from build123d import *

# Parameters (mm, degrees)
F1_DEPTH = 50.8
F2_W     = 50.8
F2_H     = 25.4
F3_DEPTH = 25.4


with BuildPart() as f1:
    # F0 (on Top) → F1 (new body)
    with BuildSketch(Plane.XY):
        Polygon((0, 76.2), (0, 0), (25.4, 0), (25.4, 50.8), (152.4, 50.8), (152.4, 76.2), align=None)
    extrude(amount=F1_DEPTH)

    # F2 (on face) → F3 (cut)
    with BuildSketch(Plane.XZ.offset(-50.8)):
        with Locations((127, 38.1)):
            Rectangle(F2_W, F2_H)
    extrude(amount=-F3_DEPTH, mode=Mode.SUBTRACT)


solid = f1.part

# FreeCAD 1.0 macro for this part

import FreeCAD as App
import Part
import Sketcher
Q = App.Units.Quantity


def add_polygon(sketch, points):
    """Adds a closed chain of lines whose ends are joined by coincident constraints."""
    first, n = sketch.GeometryCount, len(points)
    for a, b in zip(points, points[1:] + points[:1]):
        sketch.addGeometry(Part.LineSegment(App.Vector(*a, 0), App.Vector(*b, 0)), False)
    for i in range(n):
        sketch.addConstraint(Sketcher.Constraint("Coincident", first + i, 2, first + (i + 1) % n, 1))

doc = App.newDocument("Part")
body = doc.addObject("PartDesign::Body", "Body")

# Sketch on XY plane
sketch1 = doc.addObject("Sketcher::SketchObject", "Sketch")
body.addObject(sketch1)
sketch1.AttachmentSupport = (doc.XY_Plane, [""])
sketch1.MapMode = "FlatFace"
add_polygon(sketch1, [(0, 76), (0, 0), (25, 0), (25, 51), (152, 51), (152, 76)])  # lines 0-5
sketch1.addConstraint([
    Sketcher.Constraint("Vertical", 0),
    Sketcher.Constraint("Horizontal", 1),
    Sketcher.Constraint("Vertical", 2),
    Sketcher.Constraint("Horizontal", 3),
    Sketcher.Constraint("Vertical", 4),
    Sketcher.Constraint("Horizontal", 5),
    Sketcher.Constraint("Coincident", 0, 2, -1, 1),
    Sketcher.Constraint("Equal", 1, 4),
    Sketcher.Constraint("DistanceX", 1, 1, 1, 2, Q("1 in")),
    Sketcher.Constraint("DistanceX", 3, 1, 3, 2, Q("5 in")),
    Sketcher.Constraint("DistanceY", 0, 2, 0, 1, Q("3 in")),
])
pad1 = doc.addObject("PartDesign::Pad", "Pad")
body.addObject(pad1)
pad1.Profile = sketch1
pad1.Length = Q("2 in")

# Sketch on XZ plane
sketch2 = doc.addObject("Sketcher::SketchObject", "Sketch001")
body.addObject(sketch2)
sketch2.AttachmentSupport = (doc.XZ_Plane, [""])
sketch2.MapMode = "FlatFace"
sketch2.AttachmentOffset = App.Placement(App.Vector(0, 0, -2 * 25.4), App.Rotation())
add_polygon(sketch2, [(102, 51), (102, 25), (152, 25), (152, 51)])  # lines 0-3
sketch2.addConstraint([
    Sketcher.Constraint("Vertical", 0),
    Sketcher.Constraint("Horizontal", 1),
    Sketcher.Constraint("Vertical", 2),
    Sketcher.Constraint("Horizontal", 3),
    Sketcher.Constraint("DistanceX", 1, 1, 1, 2, Q("2 in")),
    Sketcher.Constraint("DistanceY", 0, 2, 0, 1, Q("1 in")),
    Sketcher.Constraint("DistanceX", -1, 1, 0, 2, Q("4 in")),
    Sketcher.Constraint("DistanceY", -1, 1, 0, 2, Q("1 in")),
])
pocket1 = doc.addObject("PartDesign::Pocket", "Pocket")
body.addObject(pocket1)
pocket1.Profile = sketch2
pocket1.Length = Q("1 in")

doc.recompute()
